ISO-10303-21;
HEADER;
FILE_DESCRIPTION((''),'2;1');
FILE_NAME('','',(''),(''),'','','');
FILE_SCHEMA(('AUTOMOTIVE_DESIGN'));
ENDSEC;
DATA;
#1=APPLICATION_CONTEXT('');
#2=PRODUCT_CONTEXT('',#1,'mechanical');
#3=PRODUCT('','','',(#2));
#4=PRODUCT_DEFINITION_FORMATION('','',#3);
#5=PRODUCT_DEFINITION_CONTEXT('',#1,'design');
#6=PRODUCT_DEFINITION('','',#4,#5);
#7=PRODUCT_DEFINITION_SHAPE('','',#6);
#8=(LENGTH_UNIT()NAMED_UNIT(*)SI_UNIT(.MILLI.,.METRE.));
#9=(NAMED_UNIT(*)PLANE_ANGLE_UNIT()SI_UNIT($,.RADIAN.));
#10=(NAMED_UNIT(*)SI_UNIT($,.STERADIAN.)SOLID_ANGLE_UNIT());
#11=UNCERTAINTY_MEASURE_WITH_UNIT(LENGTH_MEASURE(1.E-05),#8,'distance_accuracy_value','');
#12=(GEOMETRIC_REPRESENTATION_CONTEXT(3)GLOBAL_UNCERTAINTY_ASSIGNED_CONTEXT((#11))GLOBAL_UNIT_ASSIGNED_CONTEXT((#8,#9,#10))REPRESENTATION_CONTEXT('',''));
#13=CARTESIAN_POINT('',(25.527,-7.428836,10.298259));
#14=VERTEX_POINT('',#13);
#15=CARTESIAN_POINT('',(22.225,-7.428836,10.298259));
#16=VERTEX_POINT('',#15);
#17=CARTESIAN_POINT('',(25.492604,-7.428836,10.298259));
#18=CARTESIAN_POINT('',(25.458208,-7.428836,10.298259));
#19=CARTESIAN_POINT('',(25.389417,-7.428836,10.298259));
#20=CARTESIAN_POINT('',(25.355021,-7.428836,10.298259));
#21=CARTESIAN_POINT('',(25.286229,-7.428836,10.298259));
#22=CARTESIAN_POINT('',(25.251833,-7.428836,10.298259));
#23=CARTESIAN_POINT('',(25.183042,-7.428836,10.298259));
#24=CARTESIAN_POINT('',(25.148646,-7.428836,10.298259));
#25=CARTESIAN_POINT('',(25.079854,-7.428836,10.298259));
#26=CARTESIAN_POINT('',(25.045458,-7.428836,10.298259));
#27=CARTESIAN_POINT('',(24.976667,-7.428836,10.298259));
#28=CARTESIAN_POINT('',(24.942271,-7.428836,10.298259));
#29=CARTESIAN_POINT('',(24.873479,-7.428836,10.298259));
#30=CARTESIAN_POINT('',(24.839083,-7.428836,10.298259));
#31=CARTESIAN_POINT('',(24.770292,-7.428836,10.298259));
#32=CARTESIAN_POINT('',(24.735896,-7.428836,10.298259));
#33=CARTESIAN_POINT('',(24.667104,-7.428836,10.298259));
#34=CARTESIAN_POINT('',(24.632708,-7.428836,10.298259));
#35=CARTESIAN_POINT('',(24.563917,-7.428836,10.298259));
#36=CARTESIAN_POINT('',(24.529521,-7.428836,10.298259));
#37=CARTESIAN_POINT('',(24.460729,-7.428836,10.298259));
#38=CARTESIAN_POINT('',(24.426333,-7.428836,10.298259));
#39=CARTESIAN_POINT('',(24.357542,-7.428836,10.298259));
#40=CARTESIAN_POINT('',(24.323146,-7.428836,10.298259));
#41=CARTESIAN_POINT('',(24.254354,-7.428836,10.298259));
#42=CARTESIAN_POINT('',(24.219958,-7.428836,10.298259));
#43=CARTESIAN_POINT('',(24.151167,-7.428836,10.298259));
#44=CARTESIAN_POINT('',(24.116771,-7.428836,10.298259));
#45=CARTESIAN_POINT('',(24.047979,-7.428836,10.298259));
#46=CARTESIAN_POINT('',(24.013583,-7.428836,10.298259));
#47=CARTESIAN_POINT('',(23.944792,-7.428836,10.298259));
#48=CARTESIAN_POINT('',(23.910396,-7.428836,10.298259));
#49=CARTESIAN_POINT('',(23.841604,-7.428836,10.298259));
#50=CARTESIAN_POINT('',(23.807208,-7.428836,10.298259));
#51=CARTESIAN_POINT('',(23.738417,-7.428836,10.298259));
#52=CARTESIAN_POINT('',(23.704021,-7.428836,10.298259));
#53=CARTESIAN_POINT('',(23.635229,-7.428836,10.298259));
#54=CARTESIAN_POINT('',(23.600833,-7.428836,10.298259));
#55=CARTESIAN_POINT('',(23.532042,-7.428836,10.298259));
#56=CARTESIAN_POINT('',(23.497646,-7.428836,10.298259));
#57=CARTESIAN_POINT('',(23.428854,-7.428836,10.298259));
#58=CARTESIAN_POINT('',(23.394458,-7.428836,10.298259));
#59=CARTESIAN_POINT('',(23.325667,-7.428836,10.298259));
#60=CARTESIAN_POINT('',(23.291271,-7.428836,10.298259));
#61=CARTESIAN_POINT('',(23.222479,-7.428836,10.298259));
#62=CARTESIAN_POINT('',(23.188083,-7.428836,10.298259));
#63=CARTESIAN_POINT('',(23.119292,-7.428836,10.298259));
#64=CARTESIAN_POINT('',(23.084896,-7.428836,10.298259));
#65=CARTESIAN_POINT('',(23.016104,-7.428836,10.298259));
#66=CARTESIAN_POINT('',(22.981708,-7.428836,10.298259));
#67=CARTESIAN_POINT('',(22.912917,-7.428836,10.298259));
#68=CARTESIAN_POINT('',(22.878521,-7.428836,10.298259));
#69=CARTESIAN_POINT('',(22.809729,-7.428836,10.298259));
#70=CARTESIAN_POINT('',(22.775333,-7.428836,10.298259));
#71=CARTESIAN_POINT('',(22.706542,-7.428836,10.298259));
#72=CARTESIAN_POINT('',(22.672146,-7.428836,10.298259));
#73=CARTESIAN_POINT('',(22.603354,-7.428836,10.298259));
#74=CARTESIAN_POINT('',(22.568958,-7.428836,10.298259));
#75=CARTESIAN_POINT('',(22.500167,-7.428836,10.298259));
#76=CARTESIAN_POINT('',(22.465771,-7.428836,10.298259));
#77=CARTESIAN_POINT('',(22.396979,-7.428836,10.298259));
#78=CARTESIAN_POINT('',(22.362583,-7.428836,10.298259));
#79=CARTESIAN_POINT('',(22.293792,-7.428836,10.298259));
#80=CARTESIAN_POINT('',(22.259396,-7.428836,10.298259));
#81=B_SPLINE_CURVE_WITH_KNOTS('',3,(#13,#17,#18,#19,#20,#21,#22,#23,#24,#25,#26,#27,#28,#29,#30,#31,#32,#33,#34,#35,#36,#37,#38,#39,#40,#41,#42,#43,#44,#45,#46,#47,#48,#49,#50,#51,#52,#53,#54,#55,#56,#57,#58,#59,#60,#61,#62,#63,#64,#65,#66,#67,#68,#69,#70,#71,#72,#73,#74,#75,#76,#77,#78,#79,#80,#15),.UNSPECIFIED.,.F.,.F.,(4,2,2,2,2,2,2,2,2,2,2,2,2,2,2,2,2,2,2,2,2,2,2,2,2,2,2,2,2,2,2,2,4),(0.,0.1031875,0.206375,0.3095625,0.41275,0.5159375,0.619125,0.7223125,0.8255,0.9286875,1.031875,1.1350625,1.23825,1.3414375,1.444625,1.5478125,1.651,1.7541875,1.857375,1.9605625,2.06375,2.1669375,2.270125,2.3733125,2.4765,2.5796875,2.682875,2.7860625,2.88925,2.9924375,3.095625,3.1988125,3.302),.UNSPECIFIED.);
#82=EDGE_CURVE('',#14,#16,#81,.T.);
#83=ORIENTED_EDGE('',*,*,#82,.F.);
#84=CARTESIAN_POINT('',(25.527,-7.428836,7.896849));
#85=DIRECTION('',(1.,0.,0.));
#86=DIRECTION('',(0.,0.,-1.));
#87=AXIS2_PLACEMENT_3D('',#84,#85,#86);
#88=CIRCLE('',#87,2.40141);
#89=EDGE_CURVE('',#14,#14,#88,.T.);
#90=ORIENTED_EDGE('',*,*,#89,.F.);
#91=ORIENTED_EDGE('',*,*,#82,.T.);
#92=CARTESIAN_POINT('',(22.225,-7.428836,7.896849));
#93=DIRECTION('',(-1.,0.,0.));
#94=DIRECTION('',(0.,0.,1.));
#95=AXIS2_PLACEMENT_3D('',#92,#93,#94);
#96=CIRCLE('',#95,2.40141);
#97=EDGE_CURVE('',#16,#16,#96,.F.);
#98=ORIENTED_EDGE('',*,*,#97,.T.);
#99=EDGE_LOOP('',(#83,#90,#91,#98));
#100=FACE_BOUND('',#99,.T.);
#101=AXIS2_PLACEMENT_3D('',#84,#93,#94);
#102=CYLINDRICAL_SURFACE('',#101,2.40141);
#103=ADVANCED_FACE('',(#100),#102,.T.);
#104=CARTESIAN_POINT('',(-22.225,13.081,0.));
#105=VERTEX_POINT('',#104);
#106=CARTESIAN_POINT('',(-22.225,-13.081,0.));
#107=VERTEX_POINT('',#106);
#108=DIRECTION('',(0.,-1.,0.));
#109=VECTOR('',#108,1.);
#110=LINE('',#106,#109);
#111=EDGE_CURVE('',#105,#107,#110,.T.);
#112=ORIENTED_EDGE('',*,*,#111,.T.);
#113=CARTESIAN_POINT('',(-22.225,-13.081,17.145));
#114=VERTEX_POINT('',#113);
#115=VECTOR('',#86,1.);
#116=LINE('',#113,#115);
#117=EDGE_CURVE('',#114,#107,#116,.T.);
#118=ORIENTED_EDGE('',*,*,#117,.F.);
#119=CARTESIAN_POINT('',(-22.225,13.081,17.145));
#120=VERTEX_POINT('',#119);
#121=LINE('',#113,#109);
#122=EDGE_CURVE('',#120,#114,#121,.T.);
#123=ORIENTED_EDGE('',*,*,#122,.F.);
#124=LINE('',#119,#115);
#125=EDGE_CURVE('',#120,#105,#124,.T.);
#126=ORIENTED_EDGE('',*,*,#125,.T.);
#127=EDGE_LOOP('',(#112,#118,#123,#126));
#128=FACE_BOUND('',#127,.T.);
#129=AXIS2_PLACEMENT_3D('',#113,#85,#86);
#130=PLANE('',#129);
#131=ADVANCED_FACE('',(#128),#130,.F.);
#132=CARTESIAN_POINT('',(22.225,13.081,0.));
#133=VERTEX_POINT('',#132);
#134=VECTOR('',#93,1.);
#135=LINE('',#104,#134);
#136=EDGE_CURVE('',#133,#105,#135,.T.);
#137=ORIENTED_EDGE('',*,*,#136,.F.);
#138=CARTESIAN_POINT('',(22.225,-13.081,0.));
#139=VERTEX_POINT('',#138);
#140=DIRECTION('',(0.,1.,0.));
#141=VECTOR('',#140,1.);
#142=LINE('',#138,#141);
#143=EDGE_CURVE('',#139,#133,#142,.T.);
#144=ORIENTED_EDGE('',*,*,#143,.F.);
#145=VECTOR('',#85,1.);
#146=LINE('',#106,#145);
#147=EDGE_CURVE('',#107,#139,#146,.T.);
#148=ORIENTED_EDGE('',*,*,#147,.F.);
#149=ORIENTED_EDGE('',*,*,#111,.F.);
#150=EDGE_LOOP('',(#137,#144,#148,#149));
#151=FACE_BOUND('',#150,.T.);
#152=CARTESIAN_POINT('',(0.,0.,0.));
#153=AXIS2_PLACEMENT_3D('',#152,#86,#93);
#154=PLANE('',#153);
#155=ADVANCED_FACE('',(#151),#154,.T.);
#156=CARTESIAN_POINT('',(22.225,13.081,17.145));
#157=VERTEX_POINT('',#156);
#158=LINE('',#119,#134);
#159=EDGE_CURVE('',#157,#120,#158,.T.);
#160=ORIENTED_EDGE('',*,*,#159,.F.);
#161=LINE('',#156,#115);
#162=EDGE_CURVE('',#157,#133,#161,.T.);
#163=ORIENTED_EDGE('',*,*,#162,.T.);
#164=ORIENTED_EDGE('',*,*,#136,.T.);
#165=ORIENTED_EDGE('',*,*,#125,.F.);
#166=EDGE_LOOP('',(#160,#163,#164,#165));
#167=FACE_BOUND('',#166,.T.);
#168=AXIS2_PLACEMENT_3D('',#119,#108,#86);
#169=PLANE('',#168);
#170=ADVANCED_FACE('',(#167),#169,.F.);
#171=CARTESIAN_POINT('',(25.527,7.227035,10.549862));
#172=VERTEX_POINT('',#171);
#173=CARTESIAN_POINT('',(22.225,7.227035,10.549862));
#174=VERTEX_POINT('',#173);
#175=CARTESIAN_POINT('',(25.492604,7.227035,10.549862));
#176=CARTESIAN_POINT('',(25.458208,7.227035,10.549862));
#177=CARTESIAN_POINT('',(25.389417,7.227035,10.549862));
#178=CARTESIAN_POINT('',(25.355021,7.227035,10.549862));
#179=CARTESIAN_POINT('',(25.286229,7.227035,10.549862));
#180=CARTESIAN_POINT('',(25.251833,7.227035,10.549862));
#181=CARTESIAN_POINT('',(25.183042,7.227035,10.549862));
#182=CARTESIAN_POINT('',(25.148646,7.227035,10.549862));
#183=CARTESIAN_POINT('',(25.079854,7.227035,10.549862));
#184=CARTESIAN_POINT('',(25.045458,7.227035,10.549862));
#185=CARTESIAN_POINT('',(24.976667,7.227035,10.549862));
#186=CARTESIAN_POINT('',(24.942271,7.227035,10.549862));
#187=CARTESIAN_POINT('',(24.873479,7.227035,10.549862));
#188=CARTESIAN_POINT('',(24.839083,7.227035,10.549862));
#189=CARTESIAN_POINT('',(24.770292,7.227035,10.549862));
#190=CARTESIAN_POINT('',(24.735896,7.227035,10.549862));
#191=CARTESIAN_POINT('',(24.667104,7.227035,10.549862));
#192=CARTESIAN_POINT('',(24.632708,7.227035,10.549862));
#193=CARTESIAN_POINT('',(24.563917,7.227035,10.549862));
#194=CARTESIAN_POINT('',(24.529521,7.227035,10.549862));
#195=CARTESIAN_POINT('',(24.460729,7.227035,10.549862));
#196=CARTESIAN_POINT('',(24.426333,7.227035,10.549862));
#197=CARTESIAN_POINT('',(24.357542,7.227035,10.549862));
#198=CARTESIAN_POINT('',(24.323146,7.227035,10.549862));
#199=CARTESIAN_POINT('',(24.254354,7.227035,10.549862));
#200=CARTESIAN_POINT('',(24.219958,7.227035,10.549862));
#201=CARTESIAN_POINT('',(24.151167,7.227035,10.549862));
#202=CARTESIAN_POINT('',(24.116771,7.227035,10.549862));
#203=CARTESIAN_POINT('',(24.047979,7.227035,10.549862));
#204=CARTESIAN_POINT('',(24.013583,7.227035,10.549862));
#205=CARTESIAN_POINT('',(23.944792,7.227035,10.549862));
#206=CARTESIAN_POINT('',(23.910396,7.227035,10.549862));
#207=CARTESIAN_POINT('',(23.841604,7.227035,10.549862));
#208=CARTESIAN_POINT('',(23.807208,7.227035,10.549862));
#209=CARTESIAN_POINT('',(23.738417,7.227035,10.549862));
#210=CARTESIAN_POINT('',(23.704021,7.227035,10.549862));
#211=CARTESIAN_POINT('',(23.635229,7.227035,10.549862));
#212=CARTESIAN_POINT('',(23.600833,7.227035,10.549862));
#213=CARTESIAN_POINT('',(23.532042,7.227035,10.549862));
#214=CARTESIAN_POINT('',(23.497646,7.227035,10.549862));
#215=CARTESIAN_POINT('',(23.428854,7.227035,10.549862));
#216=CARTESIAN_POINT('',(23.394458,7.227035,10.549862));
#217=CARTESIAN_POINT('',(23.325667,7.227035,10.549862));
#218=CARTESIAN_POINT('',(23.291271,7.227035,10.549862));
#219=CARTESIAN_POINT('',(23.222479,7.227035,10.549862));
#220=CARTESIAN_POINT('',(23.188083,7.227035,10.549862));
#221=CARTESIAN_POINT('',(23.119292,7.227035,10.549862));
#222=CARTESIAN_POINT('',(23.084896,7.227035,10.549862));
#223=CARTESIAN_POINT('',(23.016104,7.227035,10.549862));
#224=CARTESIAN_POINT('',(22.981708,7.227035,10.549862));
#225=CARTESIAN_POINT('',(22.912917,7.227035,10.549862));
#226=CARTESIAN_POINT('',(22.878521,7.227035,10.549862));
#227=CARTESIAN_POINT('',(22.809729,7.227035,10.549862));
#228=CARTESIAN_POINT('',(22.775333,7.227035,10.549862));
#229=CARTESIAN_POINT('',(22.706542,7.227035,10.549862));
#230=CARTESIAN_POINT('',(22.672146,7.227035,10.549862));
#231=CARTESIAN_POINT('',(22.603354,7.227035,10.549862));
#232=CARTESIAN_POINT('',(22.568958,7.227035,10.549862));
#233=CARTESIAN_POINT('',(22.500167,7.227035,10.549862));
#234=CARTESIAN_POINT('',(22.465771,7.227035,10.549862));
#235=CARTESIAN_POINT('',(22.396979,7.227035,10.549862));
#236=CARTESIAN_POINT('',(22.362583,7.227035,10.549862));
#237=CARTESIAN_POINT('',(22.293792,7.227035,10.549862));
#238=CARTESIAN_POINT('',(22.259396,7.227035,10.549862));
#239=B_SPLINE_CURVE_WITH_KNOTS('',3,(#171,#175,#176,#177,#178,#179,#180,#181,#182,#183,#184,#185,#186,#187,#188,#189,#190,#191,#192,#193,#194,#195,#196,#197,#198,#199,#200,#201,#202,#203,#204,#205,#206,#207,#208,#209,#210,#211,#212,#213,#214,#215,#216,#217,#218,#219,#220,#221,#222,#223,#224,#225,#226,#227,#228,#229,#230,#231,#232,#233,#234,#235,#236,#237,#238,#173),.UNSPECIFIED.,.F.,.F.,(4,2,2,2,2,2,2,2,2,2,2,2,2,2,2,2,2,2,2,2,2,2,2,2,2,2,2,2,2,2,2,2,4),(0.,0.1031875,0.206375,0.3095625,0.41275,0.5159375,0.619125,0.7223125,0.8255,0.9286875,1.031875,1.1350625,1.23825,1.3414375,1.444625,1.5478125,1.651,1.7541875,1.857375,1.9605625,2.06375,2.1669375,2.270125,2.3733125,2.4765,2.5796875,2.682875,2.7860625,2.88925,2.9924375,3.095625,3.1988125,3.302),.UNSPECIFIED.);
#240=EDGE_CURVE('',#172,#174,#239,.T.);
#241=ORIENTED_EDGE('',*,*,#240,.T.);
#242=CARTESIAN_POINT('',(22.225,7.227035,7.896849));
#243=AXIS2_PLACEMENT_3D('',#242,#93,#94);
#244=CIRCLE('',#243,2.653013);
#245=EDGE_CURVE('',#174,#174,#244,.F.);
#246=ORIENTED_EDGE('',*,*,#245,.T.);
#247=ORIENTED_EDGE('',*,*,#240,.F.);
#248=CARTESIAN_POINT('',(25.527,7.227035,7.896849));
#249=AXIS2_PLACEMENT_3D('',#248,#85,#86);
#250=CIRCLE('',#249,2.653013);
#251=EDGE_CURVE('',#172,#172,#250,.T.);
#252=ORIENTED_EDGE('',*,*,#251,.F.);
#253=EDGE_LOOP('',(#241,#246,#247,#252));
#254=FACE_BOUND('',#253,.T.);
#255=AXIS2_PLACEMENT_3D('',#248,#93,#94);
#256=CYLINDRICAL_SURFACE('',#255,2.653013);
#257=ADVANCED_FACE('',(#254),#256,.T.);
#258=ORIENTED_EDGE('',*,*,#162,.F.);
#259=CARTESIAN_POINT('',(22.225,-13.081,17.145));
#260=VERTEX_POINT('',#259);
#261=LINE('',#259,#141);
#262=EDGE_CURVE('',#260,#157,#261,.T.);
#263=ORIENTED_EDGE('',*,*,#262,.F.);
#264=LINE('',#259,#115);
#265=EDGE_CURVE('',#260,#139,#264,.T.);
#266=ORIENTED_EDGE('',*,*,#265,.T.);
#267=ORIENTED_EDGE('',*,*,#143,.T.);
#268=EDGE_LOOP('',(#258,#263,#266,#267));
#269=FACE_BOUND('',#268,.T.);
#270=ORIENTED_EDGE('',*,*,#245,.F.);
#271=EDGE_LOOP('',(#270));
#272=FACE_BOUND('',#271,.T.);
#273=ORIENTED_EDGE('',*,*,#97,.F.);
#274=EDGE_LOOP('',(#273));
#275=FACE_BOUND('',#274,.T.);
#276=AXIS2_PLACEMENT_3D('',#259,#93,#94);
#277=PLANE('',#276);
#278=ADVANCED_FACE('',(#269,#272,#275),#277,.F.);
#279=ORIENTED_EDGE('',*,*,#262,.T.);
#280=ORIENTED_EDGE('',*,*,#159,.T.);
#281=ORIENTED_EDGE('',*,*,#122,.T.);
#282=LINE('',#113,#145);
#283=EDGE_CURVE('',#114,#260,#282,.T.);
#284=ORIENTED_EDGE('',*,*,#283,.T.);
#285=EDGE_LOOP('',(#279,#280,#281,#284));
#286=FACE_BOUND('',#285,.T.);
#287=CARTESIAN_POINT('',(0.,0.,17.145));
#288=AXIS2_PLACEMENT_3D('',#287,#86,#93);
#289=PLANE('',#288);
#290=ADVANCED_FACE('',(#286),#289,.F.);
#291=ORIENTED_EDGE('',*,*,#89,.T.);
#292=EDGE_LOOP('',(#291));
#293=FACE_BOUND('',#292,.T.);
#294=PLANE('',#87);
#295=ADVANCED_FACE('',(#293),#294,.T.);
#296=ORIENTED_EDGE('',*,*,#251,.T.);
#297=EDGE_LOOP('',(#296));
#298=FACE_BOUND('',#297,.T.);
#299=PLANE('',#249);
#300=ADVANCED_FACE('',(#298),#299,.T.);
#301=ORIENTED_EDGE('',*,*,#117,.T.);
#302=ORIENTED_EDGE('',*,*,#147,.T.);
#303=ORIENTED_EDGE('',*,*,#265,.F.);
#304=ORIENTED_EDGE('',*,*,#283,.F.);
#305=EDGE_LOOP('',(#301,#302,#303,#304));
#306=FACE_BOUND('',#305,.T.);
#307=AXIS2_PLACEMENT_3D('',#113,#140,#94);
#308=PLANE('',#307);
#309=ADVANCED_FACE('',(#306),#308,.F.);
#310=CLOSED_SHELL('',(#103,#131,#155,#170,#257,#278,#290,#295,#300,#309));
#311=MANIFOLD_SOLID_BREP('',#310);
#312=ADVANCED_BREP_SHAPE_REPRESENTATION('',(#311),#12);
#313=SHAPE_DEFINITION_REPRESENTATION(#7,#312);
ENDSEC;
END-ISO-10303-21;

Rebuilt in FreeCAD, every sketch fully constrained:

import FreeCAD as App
import Part
import Sketcher

V = App.Vector
Q = App.Units.Quantity

doc = App.newDocument("Part")
body = doc.addObject("PartDesign::Body", "Body")

sketch1 = body.newObject("Sketcher::SketchObject", "Sketch")
sketch1.AttachmentSupport = (doc.getObject("XY_Plane"), [""])
sketch1.MapMode = "FlatFace"
sketch1.addGeometry(Part.LineSegment(V(-22, 13, 0), V(-22, -13, 0)), False)
sketch1.addGeometry(Part.LineSegment(V(-22, -13, 0), V(22, -13, 0)), False)
sketch1.addGeometry(Part.LineSegment(V(22, -13, 0), V(22, 13, 0)), False)
sketch1.addGeometry(Part.LineSegment(V(22, 13, 0), V(-22, 13, 0)), False)
sketch1.addConstraint(Sketcher.Constraint("Coincident", 0, 2, 1, 1))
sketch1.addConstraint(Sketcher.Constraint("Coincident", 1, 2, 2, 1))
sketch1.addConstraint(Sketcher.Constraint("Coincident", 2, 2, 3, 1))
sketch1.addConstraint(Sketcher.Constraint("Coincident", 3, 2, 0, 1))
sketch1.addConstraint(Sketcher.Constraint("Vertical", 0))
sketch1.addConstraint(Sketcher.Constraint("Horizontal", 1))
sketch1.addConstraint(Sketcher.Constraint("Vertical", 2))
sketch1.addConstraint(Sketcher.Constraint("Horizontal", 3))
sketch1.addConstraint(Sketcher.Constraint("Symmetric", 0, 2, 2, 2, -1, 1))
sketch1.addConstraint(Sketcher.Constraint("DistanceX", 1, 1, 1, 2, Q("1.75 in")))
sketch1.addConstraint(Sketcher.Constraint("DistanceY", 0, 2, 0, 1, Q("1.03 in")))
pad1 = body.newObject("PartDesign::Pad", "Pad")
pad1.Profile = sketch1
pad1.Length = Q("0.675 in")

sketch2 = body.newObject("Sketcher::SketchObject", "Sketch001")
sketch2.AttachmentSupport = (doc.getObject("YZ_Plane"), [""])
sketch2.MapMode = "FlatFace"
sketch2.AttachmentOffset = App.Placement(V(0, 0, 0.875 * 25.4), App.Rotation())
sketch2.addGeometry(Part.Circle(V(7.2, 7.9, 0), V(0, 0, 1), 2.7), False)
sketch2.addGeometry(Part.Circle(V(-7.4, 7.9, 0), V(0, 0, 1), 2.4), False)
sketch2.addConstraint(Sketcher.Constraint("Horizontal", 0, 3, 1, 3))
sketch2.addConstraint(Sketcher.Constraint("Diameter", 1, Q("4.80282 mm")))
sketch2.addConstraint(Sketcher.Constraint("Diameter", 0, Q("5.306027 mm")))
sketch2.addConstraint(Sketcher.Constraint("DistanceY", -1, 1, 0, 3, Q("7.896849 mm")))
sketch2.addConstraint(Sketcher.Constraint("DistanceX", 1, 3, 0, 3, Q("14.655871 mm")))
sketch2.addConstraint(Sketcher.Constraint("DistanceX", -1, 1, 0, 3, Q("7.227035 mm")))
pad2 = body.newObject("PartDesign::Pad", "Pad001")
pad2.Profile = sketch2
pad2.Length = Q("0.13 in")

doc.recompute()
